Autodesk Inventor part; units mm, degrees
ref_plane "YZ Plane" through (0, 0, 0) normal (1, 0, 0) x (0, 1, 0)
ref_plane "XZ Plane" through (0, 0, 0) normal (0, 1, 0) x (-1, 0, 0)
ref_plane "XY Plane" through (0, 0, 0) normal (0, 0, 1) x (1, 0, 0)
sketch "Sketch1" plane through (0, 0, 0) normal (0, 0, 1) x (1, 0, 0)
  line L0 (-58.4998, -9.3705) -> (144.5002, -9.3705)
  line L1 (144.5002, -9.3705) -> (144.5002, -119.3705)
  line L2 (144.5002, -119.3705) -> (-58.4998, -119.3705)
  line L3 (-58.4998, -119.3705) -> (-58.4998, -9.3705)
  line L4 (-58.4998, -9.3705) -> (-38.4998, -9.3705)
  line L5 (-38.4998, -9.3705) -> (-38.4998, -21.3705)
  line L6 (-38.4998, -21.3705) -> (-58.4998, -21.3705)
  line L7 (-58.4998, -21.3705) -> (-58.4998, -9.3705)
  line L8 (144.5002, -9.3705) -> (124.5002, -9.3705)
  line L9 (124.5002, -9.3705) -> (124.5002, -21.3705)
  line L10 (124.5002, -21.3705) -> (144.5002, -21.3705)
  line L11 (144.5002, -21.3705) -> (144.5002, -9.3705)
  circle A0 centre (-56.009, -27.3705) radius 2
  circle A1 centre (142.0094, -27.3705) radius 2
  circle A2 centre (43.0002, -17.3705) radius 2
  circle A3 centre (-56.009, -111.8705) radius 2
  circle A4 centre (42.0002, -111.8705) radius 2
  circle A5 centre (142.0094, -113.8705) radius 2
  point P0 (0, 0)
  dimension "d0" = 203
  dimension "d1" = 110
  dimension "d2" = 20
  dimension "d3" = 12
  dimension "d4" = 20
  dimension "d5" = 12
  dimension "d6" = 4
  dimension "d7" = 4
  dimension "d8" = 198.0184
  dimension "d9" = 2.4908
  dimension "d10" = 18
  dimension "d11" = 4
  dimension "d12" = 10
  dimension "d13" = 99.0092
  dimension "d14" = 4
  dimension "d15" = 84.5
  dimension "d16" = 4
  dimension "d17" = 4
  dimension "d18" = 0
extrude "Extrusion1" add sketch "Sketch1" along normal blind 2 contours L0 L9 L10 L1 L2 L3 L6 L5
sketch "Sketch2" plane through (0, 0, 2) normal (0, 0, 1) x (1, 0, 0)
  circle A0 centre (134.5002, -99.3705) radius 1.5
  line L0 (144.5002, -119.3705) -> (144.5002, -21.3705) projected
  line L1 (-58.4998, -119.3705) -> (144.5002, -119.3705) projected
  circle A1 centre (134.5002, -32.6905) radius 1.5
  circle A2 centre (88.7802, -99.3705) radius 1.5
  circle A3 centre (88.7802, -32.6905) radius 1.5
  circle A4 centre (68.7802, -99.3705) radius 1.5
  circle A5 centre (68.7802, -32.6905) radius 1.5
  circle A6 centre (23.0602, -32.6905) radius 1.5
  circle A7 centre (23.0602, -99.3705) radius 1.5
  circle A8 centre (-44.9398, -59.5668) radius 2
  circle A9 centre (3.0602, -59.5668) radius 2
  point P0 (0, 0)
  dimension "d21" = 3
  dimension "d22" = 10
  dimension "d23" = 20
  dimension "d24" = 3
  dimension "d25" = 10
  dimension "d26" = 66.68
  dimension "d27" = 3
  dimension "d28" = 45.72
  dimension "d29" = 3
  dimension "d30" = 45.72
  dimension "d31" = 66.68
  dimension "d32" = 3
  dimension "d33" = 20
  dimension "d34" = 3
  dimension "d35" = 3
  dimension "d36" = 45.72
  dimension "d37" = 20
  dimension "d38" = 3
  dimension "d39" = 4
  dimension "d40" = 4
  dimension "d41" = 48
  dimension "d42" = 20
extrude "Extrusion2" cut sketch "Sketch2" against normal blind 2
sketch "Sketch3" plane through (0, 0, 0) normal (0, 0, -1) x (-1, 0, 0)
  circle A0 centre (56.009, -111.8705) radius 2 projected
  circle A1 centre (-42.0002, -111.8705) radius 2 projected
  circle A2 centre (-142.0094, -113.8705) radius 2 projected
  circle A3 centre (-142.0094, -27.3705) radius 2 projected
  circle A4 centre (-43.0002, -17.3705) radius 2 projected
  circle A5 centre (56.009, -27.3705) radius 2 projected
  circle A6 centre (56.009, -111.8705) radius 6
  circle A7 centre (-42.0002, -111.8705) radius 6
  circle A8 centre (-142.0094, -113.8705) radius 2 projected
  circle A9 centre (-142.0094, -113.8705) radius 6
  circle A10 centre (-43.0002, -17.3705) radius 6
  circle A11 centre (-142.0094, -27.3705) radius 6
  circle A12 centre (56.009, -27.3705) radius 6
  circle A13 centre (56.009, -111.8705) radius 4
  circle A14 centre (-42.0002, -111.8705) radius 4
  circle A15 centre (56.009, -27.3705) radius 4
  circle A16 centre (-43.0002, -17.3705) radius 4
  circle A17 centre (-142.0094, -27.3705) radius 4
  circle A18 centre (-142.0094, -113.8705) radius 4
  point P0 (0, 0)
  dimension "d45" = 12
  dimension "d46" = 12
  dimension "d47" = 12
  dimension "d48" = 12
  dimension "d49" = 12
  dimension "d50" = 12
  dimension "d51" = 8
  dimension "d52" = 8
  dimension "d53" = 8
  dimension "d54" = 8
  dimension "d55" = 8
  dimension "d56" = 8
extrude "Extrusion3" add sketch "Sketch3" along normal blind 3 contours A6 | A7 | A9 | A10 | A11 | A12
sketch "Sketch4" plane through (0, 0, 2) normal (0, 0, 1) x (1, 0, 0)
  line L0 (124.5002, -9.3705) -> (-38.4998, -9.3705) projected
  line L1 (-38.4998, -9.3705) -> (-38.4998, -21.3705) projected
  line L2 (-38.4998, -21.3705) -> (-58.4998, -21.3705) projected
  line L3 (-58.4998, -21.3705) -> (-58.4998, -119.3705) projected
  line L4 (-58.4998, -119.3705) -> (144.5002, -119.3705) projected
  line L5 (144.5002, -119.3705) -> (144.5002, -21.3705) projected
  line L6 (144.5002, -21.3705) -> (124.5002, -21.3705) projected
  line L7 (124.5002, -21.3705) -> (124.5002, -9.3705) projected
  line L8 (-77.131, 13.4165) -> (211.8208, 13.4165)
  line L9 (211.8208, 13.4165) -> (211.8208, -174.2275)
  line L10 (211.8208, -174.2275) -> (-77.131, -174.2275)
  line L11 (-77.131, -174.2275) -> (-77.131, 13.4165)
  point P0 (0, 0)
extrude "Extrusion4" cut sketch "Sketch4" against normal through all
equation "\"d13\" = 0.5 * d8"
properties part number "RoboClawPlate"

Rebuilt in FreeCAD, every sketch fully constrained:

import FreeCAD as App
import Part
import Sketcher
Q = App.Units.Quantity

doc = App.newDocument("Part")
body = doc.addObject("PartDesign::Body", "Body")

sketch1 = doc.addObject("Sketcher::SketchObject", "Sketch")
body.addObject(sketch1)
sketch1.AttachmentSupport = (doc.XY_Plane, [""])
sketch1.MapMode = "FlatFace"
sketch1.addGeometry([
    Part.LineSegment(App.Vector(124.5, -9.4, 0), App.Vector(-38.5, -9.4, 0)),
    Part.LineSegment(App.Vector(-38.5, -9.4, 0), App.Vector(-38.5, -21.4, 0)),
    Part.LineSegment(App.Vector(-38.5, -21.4, 0), App.Vector(-58.5, -21.4, 0)),
    Part.LineSegment(App.Vector(-58.5, -21.4, 0), App.Vector(-58.5, -119.4, 0)),
    Part.LineSegment(App.Vector(-58.5, -119.4, 0), App.Vector(144.5, -119.4, 0)),
    Part.LineSegment(App.Vector(144.5, -119.4, 0), App.Vector(144.5, -21.4, 0)),
    Part.LineSegment(App.Vector(144.5, -21.4, 0), App.Vector(124.5, -21.4, 0)),
    Part.LineSegment(App.Vector(124.5, -21.4, 0), App.Vector(124.5, -9.4, 0)),
    Part.Circle(App.Vector(-56, -111.9, 0), App.Vector(0, 0, 1), 2),
    Part.Circle(App.Vector(42, -111.9, 0), App.Vector(0, 0, 1), 2),
    Part.Circle(App.Vector(142, -113.9, 0), App.Vector(0, 0, 1), 2),
    Part.Circle(App.Vector(-56, -27.4, 0), App.Vector(0, 0, 1), 2),
    Part.Circle(App.Vector(43, -17.4, 0), App.Vector(0, 0, 1), 2),
    Part.Circle(App.Vector(142, -27.4, 0), App.Vector(0, 0, 1), 2),
], False)
sketch1.addConstraint([
    Sketcher.Constraint("Coincident", 0, 2, 1, 1),
    Sketcher.Constraint("Coincident", 1, 2, 2, 1),
    Sketcher.Constraint("Coincident", 2, 2, 3, 1),
    Sketcher.Constraint("Coincident", 3, 2, 4, 1),
    Sketcher.Constraint("Coincident", 4, 2, 5, 1),
    Sketcher.Constraint("Coincident", 5, 2, 6, 1),
    Sketcher.Constraint("Coincident", 6, 2, 7, 1),
    Sketcher.Constraint("Coincident", 7, 2, 0, 1),
    Sketcher.Constraint("Horizontal", 0),
    Sketcher.Constraint("Vertical", 1),
    Sketcher.Constraint("Horizontal", 2),
    Sketcher.Constraint("Vertical", 3),
    Sketcher.Constraint("Horizontal", 4),
    Sketcher.Constraint("Vertical", 5),
    Sketcher.Constraint("Horizontal", 6),
    Sketcher.Constraint("Vertical", 7),
    Sketcher.Constraint("Equal", 8, 9),
    Sketcher.Constraint("Equal", 9, 10),
    Sketcher.Constraint("Equal", 10, 11),
    Sketcher.Constraint("Equal", 11, 12),
    Sketcher.Constraint("Equal", 12, 13),
    Sketcher.Constraint("Horizontal", 8, 3, 9, 3),
    Sketcher.Constraint("Horizontal", 11, 3, 13, 3),
    Sketcher.Constraint("Horizontal", 2, 2, 5, 2),
    Sketcher.Constraint("Vertical", 8, 3, 11, 3),
    Sketcher.Constraint("Vertical", 10, 3, 13, 3),
    Sketcher.Constraint("Equal", 2, 6),
    Sketcher.Constraint("Diameter", 8, Q("4 mm")),
    Sketcher.Constraint("DistanceX", 2, 2, 2, 1, Q("20 mm")),
    Sketcher.Constraint("DistanceX", 4, 1, 4, 2, Q("203 mm")),
    Sketcher.Constraint("DistanceY", 1, 2, 1, 1, Q("12 mm")),
    Sketcher.Constraint("DistanceY", 11, 3, 12, 3, Q("10 mm")),
    Sketcher.Constraint("DistanceY", 11, 3, 0, 2, Q("18 mm")),
    Sketcher.Constraint("DistanceY", 8, 3, 11, 3, Q("84.5 mm")),
    Sketcher.Constraint("DistanceY", 3, 2, 3, 1, Q("98 mm")),
    Sketcher.Constraint("DistanceY", 10, 3, 9, 3, Q("2 mm")),
    Sketcher.Constraint("DistanceX", 9, 3, 12, 3, Q("1 mm")),
    Sketcher.Constraint("DistanceX", 8, 3, 10, 3, Q("198.0184 mm")),
    Sketcher.Constraint("DistanceX", 11, 3, 12, 3, Q("99.0092 mm")),
    Sketcher.Constraint("DistanceX", 0, 2, 12, 3, Q("81.5 mm")),
    Sketcher.Constraint("DistanceX", 8, 3, -1, 1, Q("56.009 mm")),
    Sketcher.Constraint("DistanceY", 8, 3, -1, 1, Q("111.8705 mm")),
])
pad1 = doc.addObject("PartDesign::Pad", "Pad")
body.addObject(pad1)
pad1.Profile = sketch1
pad1.Length = 2

sketch2 = doc.addObject("Sketcher::SketchObject", "Sketch001")
body.addObject(sketch2)
sketch2.AttachmentSupport = (doc.XY_Plane, [""])
sketch2.MapMode = "FlatFace"
sketch2.AttachmentOffset = App.Placement(App.Vector(0, 0, 2), App.Rotation())
sketch2.addGeometry([
    Part.Circle(App.Vector(134.5, -99.4, 0), App.Vector(0, 0, 1), 1.5),
    Part.Circle(App.Vector(134.5, -32.7, 0), App.Vector(0, 0, 1), 1.5),
    Part.Circle(App.Vector(88.8, -99.4, 0), App.Vector(0, 0, 1), 1.5),
    Part.Circle(App.Vector(88.8, -32.7, 0), App.Vector(0, 0, 1), 1.5),
    Part.Circle(App.Vector(68.8, -99.4, 0), App.Vector(0, 0, 1), 1.5),
    Part.Circle(App.Vector(68.8, -32.7, 0), App.Vector(0, 0, 1), 1.5),
    Part.Circle(App.Vector(23.1, -32.7, 0), App.Vector(0, 0, 1), 1.5),
    Part.Circle(App.Vector(23.1, -99.4, 0), App.Vector(0, 0, 1), 1.5),
    Part.Circle(App.Vector(-44.9, -59.6, 0), App.Vector(0, 0, 1), 2),
    Part.Circle(App.Vector(3.1, -59.6, 0), App.Vector(0, 0, 1), 2),
], False)
sketch2.addConstraint([
    Sketcher.Constraint("Equal", 0, 1),
    Sketcher.Constraint("Equal", 1, 2),
    Sketcher.Constraint("Equal", 2, 3),
    Sketcher.Constraint("Equal", 3, 4),
    Sketcher.Constraint("Equal", 4, 5),
    Sketcher.Constraint("Equal", 5, 6),
    Sketcher.Constraint("Equal", 6, 7),
    Sketcher.Constraint("Equal", 8, 9),
    Sketcher.Constraint("Horizontal", 0, 3, 2, 3),
    Sketcher.Constraint("Horizontal", 1, 3, 3, 3),
    Sketcher.Constraint("Horizontal", 2, 3, 4, 3),
    Sketcher.Constraint("Horizontal", 3, 3, 5, 3),
    Sketcher.Constraint("Horizontal", 5, 3, 6, 3),
    Sketcher.Constraint("Horizontal", 4, 3, 7, 3),
    Sketcher.Constraint("Horizontal", 8, 3, 9, 3),
    Sketcher.Constraint("Vertical", 0, 3, 1, 3),
    Sketcher.Constraint("Vertical", 2, 3, 3, 3),
    Sketcher.Constraint("Vertical", 4, 3, 5, 3),
    Sketcher.Constraint("Vertical", 6, 3, 7, 3),
    Sketcher.Constraint("Diameter", 0, Q("3 mm")),
    Sketcher.Constraint("Diameter", 8, Q("4 mm")),
    Sketcher.Constraint("DistanceX", 4, 3, 2, 3, Q("20 mm")),
    Sketcher.Constraint("DistanceX", 9, 3, 6, 3, Q("20 mm")),
    Sketcher.Constraint("DistanceX", 8, 3, 9, 3, Q("48 mm")),
    Sketcher.Constraint("DistanceY", 0, 3, 1, 3, Q("66.68 mm")),
    Sketcher.Constraint("DistanceX", 2, 3, 0, 3, Q("45.72 mm")),
    Sketcher.Constraint("DistanceX", 6, 3, 5, 3, Q("45.72 mm")),
    Sketcher.Constraint("DistanceX", -1, 1, 0, 3, Q("134.5002 mm")),
    Sketcher.Constraint("DistanceY", 0, 3, -1, 1, Q("99.3705 mm")),
    Sketcher.Constraint("DistanceY", 8, 3, -1, 1, Q("59.5668 mm")),
])
pocket1 = doc.addObject("PartDesign::Pocket", "Pocket")
body.addObject(pocket1)
pocket1.Profile = sketch2
pocket1.Length = 2

sketch3 = doc.addObject("Sketcher::SketchObject", "Sketch002")
body.addObject(sketch3)
sketch3.AttachmentSupport = (doc.XY_Plane, [""])
sketch3.MapMode = "FlatFace"
sketch3.addGeometry([
    Part.Circle(App.Vector(-56, -111.9, 0), App.Vector(0, 0, 1), 6),
    Part.Circle(App.Vector(-56, -111.9, 0), App.Vector(0, 0, 1), 4),
    Part.Circle(App.Vector(42, -111.9, 0), App.Vector(0, 0, 1), 6),
    Part.Circle(App.Vector(42, -111.9, 0), App.Vector(0, 0, 1), 4),
    Part.Circle(App.Vector(142, -113.9, 0), App.Vector(0, 0, 1), 6),
    Part.Circle(App.Vector(142, -113.9, 0), App.Vector(0, 0, 1), 4),
    Part.Circle(App.Vector(43, -17.4, 0), App.Vector(0, 0, 1), 6),
    Part.Circle(App.Vector(43, -17.4, 0), App.Vector(0, 0, 1), 4),
    Part.Circle(App.Vector(142, -27.4, 0), App.Vector(0, 0, 1), 6),
    Part.Circle(App.Vector(142, -27.4, 0), App.Vector(0, 0, 1), 4),
    Part.Circle(App.Vector(-56, -27.4, 0), App.Vector(0, 0, 1), 6),
    Part.Circle(App.Vector(-56, -27.4, 0), App.Vector(0, 0, 1), 4),
], False)
sketch3.addConstraint([
    Sketcher.Constraint("Coincident", 1, 3, 0, 3),
    Sketcher.Constraint("Coincident", 3, 3, 2, 3),
    Sketcher.Constraint("Coincident", 5, 3, 4, 3),
    Sketcher.Constraint("Coincident", 7, 3, 6, 3),
    Sketcher.Constraint("Coincident", 9, 3, 8, 3),
    Sketcher.Constraint("Coincident", 11, 3, 10, 3),
    Sketcher.Constraint("Equal", 0, 2),
    Sketcher.Constraint("Equal", 1, 3),
    Sketcher.Constraint("Equal", 2, 4),
    Sketcher.Constraint("Equal", 3, 5),
    Sketcher.Constraint("Equal", 4, 6),
    Sketcher.Constraint("Equal", 5, 7),
    Sketcher.Constraint("Equal", 6, 8),
    Sketcher.Constraint("Equal", 7, 9),
    Sketcher.Constraint("Equal", 8, 10),
    Sketcher.Constraint("Equal", 9, 11),
    Sketcher.Constraint("Horizontal", 1, 3, 2, 3),
    Sketcher.Constraint("Horizontal", 9, 3, 10, 3),
    Sketcher.Constraint("Vertical", 5, 3, 8, 3),
    Sketcher.Constraint("Vertical", 1, 3, 10, 3),
    Sketcher.Constraint("Diameter", 0, Q("12 mm")),
    Sketcher.Constraint("Diameter", 1, Q("8 mm")),
    Sketcher.Constraint("DistanceY", 4, 3, 2, 3, Q("2 mm")),
    Sketcher.Constraint("DistanceX", 2, 3, 6, 3, Q("1 mm")),
    Sketcher.Constraint("DistanceY", 8, 3, 6, 3, Q("10 mm")),
    Sketcher.Constraint("DistanceY", 2, 3, 6, 3, Q("94.5 mm")),
    Sketcher.Constraint("DistanceX", 0, 3, -1, 1, Q("56.009 mm")),
    Sketcher.Constraint("DistanceY", 0, 3, -1, 1, Q("111.8705 mm")),
    Sketcher.Constraint("DistanceX", -1, 1, 2, 3, Q("42.0002 mm")),
    Sketcher.Constraint("DistanceX", -1, 1, 4, 3, Q("142.0094 mm")),
])
pad2 = doc.addObject("PartDesign::Pad", "Pad001")
body.addObject(pad2)
pad2.Profile = sketch3
pad2.Length = 3
pad2.Reversed = True

sketch4 = doc.addObject("Sketcher::SketchObject", "Sketch003")
body.addObject(sketch4)
sketch4.AttachmentSupport = (doc.XY_Plane, [""])
sketch4.MapMode = "FlatFace"
sketch4.AttachmentOffset = App.Placement(App.Vector(0, 0, 2), App.Rotation())
sketch4.addGeometry([
    Part.LineSegment(App.Vector(212, 13, 0), App.Vector(-77, 13, 0)),
    Part.LineSegment(App.Vector(-77, 13, 0), App.Vector(-77, -174, 0)),
    Part.LineSegment(App.Vector(-77, -174, 0), App.Vector(212, -174, 0)),
    Part.LineSegment(App.Vector(212, -174, 0), App.Vector(212, 13, 0)),
    Part.LineSegment(App.Vector(-38, -9, 0), App.Vector(125, -9, 0)),
    Part.LineSegment(App.Vector(125, -9, 0), App.Vector(125, -21, 0)),
    Part.LineSegment(App.Vector(125, -21, 0), App.Vector(145, -21, 0)),
    Part.LineSegment(App.Vector(145, -21, 0), App.Vector(145, -119, 0)),
    Part.LineSegment(App.Vector(145, -119, 0), App.Vector(-58, -119, 0)),
    Part.LineSegment(App.Vector(-58, -119, 0), App.Vector(-58, -21, 0)),
    Part.LineSegment(App.Vector(-58, -21, 0), App.Vector(-38, -21, 0)),
    Part.LineSegment(App.Vector(-38, -21, 0), App.Vector(-38, -9, 0)),
], False)
sketch4.addConstraint([
    Sketcher.Constraint("Coincident", 0, 2, 1, 1),
    Sketcher.Constraint("Coincident", 1, 2, 2, 1),
    Sketcher.Constraint("Coincident", 2, 2, 3, 1),
    Sketcher.Constraint("Coincident", 3, 2, 0, 1),
    Sketcher.Constraint("Coincident", 4, 2, 5, 1),
    Sketcher.Constraint("Coincident", 5, 2, 6, 1),
    Sketcher.Constraint("Coincident", 6, 2, 7, 1),
    Sketcher.Constraint("Coincident", 7, 2, 8, 1),
    Sketcher.Constraint("Coincident", 8, 2, 9, 1),
    Sketcher.Constraint("Coincident", 9, 2, 10, 1),
    Sketcher.Constraint("Coincident", 10, 2, 11, 1),
    Sketcher.Constraint("Coincident", 11, 2, 4, 1),
    Sketcher.Constraint("Horizontal", 0),
    Sketcher.Constraint("Vertical", 1),
    Sketcher.Constraint("Horizontal", 2),
    Sketcher.Constraint("Vertical", 3),
    Sketcher.Constraint("Horizontal", 4),
    Sketcher.Constraint("Vertical", 5),
    Sketcher.Constraint("Horizontal", 6),
    Sketcher.Constraint("Vertical", 7),
    Sketcher.Constraint("Horizontal", 8),
    Sketcher.Constraint("Vertical", 9),
    Sketcher.Constraint("Horizontal", 10),
    Sketcher.Constraint("Vertical", 11),
    Sketcher.Constraint("Horizontal", 6, 2, 9, 2),
    Sketcher.Constraint("Equal", 6, 10),
    Sketcher.Constraint("DistanceX", 4, 1, 4, 2, Q("163 mm")),
    Sketcher.Constraint("DistanceX", 6, 1, 6, 2, Q("20 mm")),
    Sketcher.Constraint("DistanceY", 5, 2, 5, 1, Q("12 mm")),
    Sketcher.Constraint("DistanceY", 7, 2, 7, 1, Q("98 mm")),
    Sketcher.Constraint("DistanceY", 1, 2, 1, 1, Q("187.644 mm")),
    Sketcher.Constraint("DistanceX", 0, 2, 0, 1, Q("288.9518 mm")),
    Sketcher.Constraint("DistanceX", 0, 2, -1, 1, Q("77.131 mm")),
    Sketcher.Constraint("DistanceY", 4, 2, 3, 2, Q("22.787 mm")),
    Sketcher.Constraint("DistanceY", -1, 1, 0, 2, Q("13.4165 mm")),
    Sketcher.Constraint("DistanceX", -1, 1, 4, 2, Q("124.5002 mm")),
])
pocket2 = doc.addObject("PartDesign::Pocket", "Pocket001")
body.addObject(pocket2)
pocket2.Profile = sketch4
pocket2.Type = "ThroughAll"

doc.recompute()
